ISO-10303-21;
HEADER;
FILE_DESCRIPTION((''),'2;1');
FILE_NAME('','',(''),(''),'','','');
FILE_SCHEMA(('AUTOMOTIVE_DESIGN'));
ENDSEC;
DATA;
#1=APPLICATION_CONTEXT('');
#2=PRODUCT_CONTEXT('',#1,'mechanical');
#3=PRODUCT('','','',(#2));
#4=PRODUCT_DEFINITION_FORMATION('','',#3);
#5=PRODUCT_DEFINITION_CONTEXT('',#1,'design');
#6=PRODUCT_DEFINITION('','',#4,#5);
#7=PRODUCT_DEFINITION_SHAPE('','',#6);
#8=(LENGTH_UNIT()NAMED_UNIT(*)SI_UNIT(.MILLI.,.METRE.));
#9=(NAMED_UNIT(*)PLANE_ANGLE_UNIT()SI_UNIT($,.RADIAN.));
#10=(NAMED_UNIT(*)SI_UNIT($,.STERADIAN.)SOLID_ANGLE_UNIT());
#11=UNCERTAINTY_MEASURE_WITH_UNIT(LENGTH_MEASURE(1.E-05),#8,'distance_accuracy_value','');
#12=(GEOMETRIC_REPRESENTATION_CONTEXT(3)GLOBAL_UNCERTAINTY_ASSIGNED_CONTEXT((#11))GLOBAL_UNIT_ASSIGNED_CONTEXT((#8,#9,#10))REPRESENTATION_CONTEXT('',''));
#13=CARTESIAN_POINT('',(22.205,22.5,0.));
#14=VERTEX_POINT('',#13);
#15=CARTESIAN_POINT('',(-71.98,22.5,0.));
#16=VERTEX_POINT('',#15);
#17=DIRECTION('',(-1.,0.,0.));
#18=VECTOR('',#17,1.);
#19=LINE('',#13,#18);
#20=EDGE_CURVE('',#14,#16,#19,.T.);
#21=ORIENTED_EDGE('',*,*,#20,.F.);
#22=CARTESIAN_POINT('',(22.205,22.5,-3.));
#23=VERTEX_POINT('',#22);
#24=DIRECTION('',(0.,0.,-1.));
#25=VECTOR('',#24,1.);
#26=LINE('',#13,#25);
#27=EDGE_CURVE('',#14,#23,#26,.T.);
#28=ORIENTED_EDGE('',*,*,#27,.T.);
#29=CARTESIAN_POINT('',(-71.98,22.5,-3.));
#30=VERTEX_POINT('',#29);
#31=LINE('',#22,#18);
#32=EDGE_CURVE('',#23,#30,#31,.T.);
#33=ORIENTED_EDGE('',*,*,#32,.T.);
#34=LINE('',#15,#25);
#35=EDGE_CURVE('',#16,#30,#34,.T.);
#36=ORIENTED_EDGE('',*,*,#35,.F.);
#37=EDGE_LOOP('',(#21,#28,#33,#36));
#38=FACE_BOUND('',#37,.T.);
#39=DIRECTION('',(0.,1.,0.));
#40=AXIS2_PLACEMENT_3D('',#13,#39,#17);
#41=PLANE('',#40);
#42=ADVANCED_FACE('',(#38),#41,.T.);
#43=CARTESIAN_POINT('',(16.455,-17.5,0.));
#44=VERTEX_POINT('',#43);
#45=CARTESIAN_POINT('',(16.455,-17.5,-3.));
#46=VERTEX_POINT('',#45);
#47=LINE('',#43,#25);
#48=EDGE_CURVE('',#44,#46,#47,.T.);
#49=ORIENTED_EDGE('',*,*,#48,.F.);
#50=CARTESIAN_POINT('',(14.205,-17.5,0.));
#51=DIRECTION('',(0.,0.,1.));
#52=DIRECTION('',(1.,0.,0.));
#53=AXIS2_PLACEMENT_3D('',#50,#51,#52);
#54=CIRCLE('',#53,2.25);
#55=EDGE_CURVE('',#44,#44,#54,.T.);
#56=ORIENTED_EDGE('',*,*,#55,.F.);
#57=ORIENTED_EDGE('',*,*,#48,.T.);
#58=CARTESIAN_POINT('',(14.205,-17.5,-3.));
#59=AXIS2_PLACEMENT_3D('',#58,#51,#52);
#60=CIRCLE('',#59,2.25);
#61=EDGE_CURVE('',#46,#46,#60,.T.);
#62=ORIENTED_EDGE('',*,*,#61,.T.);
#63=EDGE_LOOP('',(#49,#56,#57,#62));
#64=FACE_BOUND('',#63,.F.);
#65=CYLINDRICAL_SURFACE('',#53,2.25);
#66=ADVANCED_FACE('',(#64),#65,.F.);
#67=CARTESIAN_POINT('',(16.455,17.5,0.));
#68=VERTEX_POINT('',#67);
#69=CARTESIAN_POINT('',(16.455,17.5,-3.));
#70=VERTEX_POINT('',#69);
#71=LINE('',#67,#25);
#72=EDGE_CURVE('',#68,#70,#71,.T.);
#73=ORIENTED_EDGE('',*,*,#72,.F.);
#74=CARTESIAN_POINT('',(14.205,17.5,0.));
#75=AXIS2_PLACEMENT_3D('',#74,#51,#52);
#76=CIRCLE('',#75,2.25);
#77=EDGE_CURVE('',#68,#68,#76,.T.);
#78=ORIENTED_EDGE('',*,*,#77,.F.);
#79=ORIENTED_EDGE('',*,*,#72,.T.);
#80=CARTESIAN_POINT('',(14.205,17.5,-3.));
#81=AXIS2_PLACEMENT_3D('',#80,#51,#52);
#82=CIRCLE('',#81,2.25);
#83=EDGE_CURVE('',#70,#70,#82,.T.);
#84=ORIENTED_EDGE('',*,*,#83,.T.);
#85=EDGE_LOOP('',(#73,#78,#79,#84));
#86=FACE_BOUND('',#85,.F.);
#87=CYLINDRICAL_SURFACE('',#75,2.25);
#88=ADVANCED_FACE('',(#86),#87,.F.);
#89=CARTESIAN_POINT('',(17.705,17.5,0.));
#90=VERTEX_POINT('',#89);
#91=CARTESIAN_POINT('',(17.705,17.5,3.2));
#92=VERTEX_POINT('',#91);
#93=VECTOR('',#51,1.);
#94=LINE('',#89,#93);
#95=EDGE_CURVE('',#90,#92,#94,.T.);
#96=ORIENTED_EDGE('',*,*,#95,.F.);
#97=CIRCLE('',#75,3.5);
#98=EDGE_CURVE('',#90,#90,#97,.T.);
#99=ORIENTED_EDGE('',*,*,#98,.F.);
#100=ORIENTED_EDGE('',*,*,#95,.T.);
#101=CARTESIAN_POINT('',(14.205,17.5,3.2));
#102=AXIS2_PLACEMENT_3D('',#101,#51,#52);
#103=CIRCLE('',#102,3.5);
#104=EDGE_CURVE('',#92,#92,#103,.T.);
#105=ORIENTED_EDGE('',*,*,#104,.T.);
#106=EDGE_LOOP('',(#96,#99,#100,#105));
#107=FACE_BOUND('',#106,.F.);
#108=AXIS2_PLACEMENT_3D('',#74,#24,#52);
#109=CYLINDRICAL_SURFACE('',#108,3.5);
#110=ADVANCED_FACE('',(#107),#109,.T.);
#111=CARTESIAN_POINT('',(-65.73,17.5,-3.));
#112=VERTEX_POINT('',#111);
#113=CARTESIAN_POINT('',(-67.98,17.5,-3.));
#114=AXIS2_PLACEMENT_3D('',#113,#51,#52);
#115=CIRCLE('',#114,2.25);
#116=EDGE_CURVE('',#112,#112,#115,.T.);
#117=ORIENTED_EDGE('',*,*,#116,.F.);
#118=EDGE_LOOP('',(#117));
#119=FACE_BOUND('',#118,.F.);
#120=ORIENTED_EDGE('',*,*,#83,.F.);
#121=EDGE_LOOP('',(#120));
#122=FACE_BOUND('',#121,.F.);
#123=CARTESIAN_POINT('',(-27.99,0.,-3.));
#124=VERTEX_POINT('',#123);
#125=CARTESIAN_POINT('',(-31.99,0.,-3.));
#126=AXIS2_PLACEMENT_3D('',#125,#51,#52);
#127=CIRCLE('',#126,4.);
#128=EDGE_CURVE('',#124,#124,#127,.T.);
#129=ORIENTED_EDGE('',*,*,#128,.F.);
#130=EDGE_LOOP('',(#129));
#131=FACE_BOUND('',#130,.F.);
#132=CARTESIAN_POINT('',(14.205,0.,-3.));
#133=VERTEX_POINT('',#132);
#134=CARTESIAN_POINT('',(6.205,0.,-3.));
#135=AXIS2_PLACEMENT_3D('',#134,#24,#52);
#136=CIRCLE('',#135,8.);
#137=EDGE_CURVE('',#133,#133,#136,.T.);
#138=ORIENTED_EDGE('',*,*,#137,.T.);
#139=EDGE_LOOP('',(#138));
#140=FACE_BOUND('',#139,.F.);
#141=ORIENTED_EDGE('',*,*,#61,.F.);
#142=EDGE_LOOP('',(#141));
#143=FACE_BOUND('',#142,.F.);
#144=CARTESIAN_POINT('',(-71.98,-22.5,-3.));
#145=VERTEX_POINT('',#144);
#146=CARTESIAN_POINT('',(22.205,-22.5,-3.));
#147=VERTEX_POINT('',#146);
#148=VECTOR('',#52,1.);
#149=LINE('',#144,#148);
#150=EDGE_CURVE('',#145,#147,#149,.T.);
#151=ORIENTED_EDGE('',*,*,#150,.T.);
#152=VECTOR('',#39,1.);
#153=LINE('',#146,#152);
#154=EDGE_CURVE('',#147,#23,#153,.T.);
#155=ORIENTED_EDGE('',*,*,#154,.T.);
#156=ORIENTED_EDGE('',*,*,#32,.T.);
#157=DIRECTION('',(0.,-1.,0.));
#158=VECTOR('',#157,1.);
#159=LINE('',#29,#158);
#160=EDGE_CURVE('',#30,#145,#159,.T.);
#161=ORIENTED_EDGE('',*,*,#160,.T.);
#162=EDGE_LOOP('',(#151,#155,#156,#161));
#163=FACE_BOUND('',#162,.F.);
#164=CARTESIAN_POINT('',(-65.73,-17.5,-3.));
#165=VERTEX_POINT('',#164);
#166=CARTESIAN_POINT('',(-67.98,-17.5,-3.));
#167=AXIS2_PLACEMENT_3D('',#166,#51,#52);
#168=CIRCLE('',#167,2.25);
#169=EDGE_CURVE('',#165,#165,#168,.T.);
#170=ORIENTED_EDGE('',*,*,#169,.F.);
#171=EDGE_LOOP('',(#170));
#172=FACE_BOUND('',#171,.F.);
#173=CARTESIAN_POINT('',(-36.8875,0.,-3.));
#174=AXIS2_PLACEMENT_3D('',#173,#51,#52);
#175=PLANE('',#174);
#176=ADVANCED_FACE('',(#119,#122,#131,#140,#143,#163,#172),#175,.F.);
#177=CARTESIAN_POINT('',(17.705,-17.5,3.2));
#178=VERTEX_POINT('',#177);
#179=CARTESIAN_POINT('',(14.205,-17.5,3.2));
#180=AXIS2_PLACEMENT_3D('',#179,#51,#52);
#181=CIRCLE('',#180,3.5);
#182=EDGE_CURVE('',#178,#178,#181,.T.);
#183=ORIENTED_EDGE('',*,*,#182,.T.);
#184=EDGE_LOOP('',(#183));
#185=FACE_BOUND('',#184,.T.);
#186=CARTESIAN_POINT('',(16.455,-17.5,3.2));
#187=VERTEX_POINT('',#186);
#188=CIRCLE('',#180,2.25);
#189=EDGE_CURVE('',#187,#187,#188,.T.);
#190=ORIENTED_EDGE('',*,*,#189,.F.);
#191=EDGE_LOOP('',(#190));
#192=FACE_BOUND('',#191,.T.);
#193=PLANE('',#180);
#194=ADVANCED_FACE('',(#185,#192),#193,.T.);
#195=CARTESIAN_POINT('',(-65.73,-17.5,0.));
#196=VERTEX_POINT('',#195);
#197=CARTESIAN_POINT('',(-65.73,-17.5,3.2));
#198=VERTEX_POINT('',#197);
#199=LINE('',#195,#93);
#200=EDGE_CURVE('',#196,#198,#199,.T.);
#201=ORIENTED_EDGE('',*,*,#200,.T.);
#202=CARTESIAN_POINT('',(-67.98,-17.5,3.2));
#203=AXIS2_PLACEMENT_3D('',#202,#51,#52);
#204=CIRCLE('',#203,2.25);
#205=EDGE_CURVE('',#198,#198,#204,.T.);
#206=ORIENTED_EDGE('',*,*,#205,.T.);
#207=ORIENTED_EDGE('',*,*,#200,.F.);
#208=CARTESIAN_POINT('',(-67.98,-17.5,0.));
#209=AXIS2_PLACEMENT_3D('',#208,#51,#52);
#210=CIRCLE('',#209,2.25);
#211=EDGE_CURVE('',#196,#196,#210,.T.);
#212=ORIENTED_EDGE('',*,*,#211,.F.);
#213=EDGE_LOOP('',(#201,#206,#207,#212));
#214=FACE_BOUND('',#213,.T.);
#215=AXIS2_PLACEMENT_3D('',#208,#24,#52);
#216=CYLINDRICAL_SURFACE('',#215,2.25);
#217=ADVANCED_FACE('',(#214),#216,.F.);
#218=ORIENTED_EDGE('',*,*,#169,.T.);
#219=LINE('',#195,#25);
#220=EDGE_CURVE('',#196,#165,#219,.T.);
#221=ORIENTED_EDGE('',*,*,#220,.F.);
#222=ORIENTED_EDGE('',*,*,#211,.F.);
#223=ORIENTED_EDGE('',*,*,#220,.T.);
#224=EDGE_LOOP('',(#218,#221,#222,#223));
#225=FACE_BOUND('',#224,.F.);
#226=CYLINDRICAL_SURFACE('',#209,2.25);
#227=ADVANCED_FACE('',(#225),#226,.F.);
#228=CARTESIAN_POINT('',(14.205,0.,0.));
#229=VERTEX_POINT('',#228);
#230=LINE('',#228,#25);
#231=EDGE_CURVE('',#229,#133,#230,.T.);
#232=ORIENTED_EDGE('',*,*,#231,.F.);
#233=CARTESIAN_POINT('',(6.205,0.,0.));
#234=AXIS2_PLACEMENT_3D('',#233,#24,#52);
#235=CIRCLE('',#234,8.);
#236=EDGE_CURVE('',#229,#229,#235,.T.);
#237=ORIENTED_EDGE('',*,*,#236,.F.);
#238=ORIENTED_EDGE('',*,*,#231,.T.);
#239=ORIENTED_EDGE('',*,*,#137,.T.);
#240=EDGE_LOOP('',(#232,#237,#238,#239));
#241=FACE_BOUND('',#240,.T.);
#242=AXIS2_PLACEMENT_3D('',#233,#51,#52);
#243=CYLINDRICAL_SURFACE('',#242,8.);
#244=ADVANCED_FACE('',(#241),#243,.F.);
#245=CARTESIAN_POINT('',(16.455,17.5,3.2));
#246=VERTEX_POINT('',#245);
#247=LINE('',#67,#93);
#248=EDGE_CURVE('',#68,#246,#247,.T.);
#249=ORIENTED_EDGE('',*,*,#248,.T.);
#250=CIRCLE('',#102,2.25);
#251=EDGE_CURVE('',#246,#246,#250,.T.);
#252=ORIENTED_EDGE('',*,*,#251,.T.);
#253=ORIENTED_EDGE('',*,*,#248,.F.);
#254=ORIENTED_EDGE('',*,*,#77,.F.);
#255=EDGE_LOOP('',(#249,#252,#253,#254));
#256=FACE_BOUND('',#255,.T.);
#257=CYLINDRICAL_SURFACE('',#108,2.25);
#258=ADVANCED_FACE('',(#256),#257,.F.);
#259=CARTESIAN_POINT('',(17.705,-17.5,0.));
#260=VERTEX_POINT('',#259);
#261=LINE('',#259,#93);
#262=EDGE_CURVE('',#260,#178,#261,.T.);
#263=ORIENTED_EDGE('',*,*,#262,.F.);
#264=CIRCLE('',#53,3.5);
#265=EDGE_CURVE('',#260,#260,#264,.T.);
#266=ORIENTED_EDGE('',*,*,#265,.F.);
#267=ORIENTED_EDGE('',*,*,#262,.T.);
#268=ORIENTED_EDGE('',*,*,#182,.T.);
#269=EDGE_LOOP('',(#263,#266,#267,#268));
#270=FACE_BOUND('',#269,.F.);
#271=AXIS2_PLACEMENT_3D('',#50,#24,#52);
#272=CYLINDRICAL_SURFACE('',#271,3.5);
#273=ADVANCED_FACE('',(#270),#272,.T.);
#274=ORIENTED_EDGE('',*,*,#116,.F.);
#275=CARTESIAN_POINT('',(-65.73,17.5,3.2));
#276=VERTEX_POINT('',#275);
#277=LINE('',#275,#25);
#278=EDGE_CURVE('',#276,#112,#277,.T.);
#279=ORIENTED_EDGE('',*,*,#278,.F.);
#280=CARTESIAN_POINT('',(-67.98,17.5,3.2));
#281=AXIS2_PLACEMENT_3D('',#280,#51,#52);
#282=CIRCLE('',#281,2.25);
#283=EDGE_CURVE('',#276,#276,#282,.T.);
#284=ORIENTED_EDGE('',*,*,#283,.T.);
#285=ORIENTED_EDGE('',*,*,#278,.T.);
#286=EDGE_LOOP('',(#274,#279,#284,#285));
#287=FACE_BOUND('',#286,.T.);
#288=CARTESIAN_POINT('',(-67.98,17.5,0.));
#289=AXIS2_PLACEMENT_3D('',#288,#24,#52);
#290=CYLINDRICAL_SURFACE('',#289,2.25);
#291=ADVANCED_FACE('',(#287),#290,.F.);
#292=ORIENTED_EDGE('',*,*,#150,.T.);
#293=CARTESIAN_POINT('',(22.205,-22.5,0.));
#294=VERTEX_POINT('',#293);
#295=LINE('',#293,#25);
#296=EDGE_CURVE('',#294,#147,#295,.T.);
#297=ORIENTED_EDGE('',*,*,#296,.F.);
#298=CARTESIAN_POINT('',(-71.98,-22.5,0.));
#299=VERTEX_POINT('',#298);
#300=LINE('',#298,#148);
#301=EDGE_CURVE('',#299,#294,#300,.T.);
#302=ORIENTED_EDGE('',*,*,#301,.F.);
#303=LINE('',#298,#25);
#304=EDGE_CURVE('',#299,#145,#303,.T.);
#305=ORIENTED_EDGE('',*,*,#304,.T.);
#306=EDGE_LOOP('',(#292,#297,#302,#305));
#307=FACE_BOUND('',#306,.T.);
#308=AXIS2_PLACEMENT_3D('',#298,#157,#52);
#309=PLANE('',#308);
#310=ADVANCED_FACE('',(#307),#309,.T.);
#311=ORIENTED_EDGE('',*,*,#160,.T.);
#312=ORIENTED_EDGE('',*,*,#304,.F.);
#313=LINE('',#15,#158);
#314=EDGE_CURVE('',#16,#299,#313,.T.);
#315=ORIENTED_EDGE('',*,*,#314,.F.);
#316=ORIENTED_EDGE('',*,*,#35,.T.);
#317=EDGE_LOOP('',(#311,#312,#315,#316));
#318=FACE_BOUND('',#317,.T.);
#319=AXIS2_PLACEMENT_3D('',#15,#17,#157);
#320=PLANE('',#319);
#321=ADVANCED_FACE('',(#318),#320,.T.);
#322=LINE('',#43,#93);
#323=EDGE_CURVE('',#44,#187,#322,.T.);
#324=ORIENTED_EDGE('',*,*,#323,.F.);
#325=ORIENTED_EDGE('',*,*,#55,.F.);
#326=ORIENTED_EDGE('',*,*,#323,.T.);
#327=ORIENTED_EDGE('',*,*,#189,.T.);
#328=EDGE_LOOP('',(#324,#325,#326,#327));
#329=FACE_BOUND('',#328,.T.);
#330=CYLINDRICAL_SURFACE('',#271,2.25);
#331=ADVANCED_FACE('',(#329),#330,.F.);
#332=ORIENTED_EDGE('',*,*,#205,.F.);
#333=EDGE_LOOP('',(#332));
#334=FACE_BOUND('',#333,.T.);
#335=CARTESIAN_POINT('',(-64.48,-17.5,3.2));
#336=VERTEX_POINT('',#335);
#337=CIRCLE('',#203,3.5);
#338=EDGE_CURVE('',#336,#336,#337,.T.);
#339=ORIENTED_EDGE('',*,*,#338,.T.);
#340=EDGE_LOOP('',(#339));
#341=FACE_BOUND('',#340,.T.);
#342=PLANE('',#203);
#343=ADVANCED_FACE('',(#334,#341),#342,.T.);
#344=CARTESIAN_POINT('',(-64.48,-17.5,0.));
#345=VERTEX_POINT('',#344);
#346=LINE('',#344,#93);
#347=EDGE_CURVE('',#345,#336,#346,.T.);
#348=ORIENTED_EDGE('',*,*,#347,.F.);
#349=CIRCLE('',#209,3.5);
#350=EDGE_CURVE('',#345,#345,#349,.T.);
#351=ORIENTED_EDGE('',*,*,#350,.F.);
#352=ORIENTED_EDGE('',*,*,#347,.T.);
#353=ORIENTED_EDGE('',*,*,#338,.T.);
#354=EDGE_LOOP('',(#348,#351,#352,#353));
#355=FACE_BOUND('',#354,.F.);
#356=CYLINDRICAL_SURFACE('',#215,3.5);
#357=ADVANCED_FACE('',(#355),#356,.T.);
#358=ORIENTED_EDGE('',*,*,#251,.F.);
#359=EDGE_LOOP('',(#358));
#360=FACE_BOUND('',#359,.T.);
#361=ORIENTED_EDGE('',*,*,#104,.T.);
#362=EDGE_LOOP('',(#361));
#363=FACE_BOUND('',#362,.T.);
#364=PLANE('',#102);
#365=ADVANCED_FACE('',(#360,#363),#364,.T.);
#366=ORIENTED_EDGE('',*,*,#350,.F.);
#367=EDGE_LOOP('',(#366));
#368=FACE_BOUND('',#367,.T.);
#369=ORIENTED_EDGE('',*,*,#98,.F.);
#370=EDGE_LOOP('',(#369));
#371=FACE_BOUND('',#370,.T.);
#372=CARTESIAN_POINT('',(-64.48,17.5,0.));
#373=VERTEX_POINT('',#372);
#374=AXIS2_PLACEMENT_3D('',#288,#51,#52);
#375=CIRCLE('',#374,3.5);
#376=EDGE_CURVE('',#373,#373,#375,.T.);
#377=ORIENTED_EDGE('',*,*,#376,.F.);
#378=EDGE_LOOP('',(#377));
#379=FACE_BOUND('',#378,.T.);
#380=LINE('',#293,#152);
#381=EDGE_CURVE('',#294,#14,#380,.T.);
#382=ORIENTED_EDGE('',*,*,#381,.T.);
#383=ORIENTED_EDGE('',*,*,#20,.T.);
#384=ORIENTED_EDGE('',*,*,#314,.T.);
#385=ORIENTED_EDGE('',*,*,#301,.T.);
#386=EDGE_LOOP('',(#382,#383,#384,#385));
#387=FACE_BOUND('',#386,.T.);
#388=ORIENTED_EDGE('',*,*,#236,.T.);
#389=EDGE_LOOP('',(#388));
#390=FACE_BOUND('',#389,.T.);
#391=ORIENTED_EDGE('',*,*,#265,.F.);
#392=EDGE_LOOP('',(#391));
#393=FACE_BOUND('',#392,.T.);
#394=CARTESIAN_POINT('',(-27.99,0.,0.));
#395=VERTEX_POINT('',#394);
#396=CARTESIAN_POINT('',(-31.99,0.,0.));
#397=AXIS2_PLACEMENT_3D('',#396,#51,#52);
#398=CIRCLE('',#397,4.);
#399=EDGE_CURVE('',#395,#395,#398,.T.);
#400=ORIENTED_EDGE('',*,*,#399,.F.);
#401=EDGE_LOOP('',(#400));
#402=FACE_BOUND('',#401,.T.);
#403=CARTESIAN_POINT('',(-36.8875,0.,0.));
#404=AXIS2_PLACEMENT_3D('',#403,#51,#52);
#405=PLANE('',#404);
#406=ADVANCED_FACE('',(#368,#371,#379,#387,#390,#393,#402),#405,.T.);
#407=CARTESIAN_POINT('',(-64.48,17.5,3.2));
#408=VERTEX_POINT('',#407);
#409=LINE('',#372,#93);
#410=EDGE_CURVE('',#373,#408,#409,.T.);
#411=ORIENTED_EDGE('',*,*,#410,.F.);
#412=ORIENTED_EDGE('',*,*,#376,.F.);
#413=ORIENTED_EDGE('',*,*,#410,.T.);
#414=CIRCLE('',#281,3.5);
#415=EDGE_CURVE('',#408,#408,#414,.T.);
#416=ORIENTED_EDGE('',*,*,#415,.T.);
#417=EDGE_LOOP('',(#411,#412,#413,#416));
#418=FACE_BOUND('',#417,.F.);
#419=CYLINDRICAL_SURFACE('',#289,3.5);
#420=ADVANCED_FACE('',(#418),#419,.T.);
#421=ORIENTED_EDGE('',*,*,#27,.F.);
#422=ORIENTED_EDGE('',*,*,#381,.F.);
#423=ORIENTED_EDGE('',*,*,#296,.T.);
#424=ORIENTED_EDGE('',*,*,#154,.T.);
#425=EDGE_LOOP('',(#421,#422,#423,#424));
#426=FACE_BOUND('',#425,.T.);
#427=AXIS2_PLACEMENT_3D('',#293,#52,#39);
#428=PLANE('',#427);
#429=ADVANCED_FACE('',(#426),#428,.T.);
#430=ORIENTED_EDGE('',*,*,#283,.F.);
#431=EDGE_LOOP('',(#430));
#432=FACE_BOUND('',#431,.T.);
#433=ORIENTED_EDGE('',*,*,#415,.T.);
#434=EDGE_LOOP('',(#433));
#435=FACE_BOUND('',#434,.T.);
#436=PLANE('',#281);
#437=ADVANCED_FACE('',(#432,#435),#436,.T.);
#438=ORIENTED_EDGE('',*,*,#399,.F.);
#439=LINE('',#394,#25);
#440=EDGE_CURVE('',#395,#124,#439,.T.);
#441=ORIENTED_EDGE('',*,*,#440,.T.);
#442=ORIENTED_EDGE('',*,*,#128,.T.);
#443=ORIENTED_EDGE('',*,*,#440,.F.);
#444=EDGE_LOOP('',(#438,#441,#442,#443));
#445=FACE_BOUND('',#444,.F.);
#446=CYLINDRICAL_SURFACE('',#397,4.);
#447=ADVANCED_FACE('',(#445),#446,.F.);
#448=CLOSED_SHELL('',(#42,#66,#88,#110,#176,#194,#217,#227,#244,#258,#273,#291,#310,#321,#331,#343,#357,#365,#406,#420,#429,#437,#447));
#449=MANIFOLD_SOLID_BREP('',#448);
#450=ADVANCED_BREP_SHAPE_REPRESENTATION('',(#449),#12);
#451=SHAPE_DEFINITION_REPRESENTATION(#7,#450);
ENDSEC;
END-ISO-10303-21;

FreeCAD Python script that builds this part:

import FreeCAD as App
import Part
import Sketcher
from FreeCAD import Vector

doc = App.newDocument("Part")
body = doc.addObject("PartDesign::Body", "Body")

# Sketch on XY plane
sketch1 = body.newObject("Sketcher::SketchObject", "Sketch")
sketch1.AttachmentSupport = (doc.getObject("XY_Plane"), [""])
sketch1.MapMode = "FlatFace"
sketch1.addGeometry([
    Part.LineSegment(Vector(-72, -22.5, 0), Vector(22.2, -22.5, 0)),  # 0
    Part.LineSegment(Vector(22.2, -22.5, 0), Vector(22.2, 22.5, 0)),  # 1
    Part.LineSegment(Vector(22.2, 22.5, 0), Vector(-72, 22.5, 0)),  # 2
    Part.LineSegment(Vector(-72, 22.5, 0), Vector(-72, -22.5, 0)),  # 3
    Part.Circle(Vector(-68, -17.5, 0), Vector(0, 0, 1), 2.2),  # 4
    Part.Circle(Vector(14.2, -17.5, 0), Vector(0, 0, 1), 2.2),  # 5
    Part.Circle(Vector(-32, 0, 0), Vector(0, 0, 1), 4),  # 6
    Part.Circle(Vector(-68, 17.5, 0), Vector(0, 0, 1), 2.2),  # 7
    Part.Circle(Vector(6.2, 0, 0), Vector(0, 0, 1), 8),  # 8
    Part.Circle(Vector(14.2, 17.5, 0), Vector(0, 0, 1), 2.2),  # 9
], False)
sketch1.addConstraint([
    Sketcher.Constraint("Coincident", 0, 2, 1, 1),
    Sketcher.Constraint("Coincident", 1, 2, 2, 1),
    Sketcher.Constraint("Coincident", 2, 2, 3, 1),
    Sketcher.Constraint("Coincident", 3, 2, 0, 1),
    Sketcher.Constraint("Horizontal", 0),
    Sketcher.Constraint("Vertical", 1),
    Sketcher.Constraint("Horizontal", 2),
    Sketcher.Constraint("Vertical", 3),
    Sketcher.Constraint("Equal", 4, 5),
    Sketcher.Constraint("Equal", 5, 7),
    Sketcher.Constraint("Equal", 7, 9),
    Sketcher.Constraint("Symmetric", 4, 3, 7, 3, -1),
    Sketcher.Constraint("Symmetric", 5, 3, 9, 3, -1),
    Sketcher.Constraint("PointOnObject", 6, 3, -1),
    Sketcher.Constraint("PointOnObject", 8, 3, -1),
    Sketcher.Constraint("Horizontal", 4, 3, 5, 3),
    Sketcher.Constraint("Diameter", 6, 8.0),
    Sketcher.Constraint("Diameter", 8, 16.0),
    Sketcher.Constraint("Diameter", 4, 4.5),
    Sketcher.Constraint("DistanceY", 1, 1, 1, 2, 45.0),
    Sketcher.Constraint("DistanceY", 4, 3, 7, 3, 35.0),
    Sketcher.Constraint("DistanceX", 8, 3, 5, 3, 8.0),
    Sketcher.Constraint("DistanceX", 5, 3, 0, 2, 8.0),
    Sketcher.Constraint("DistanceY", 0, 2, 5, 3, 5.0),
    Sketcher.Constraint("DistanceX", 2, 2, 7, 3, 4.0),
    Sketcher.Constraint("DistanceX", 0, 1, 0, 2, 94.185),
    Sketcher.Constraint("DistanceX", 4, 3, -1, 1, 67.98),
    Sketcher.Constraint("DistanceX", 6, 3, -1, 1, 31.99),
])
pad1 = body.newObject("PartDesign::Pad", "Pad")
pad1.Profile = sketch1
pad1.Length = 3
pad1.Reversed = True

# Sketch on XY plane
sketch2 = body.newObject("Sketcher::SketchObject", "Sketch001")
sketch2.AttachmentSupport = (doc.getObject("XY_Plane"), [""])
sketch2.MapMode = "FlatFace"
sketch2.addGeometry([
    Part.Circle(Vector(-68, 17.5, 0), Vector(0, 0, 1), 3.5),  # 0
    Part.Circle(Vector(-68, 17.5, 0), Vector(0, 0, 1), 2.2),  # 1
    Part.Circle(Vector(-68, -17.5, 0), Vector(0, 0, 1), 3.5),  # 2
    Part.Circle(Vector(-68, -17.5, 0), Vector(0, 0, 1), 2.2),  # 3
    Part.Circle(Vector(14.2, -17.5, 0), Vector(0, 0, 1), 3.5),  # 4
    Part.Circle(Vector(14.2, -17.5, 0), Vector(0, 0, 1), 2.2),  # 5
    Part.Circle(Vector(14.2, 17.5, 0), Vector(0, 0, 1), 3.5),  # 6
    Part.Circle(Vector(14.2, 17.5, 0), Vector(0, 0, 1), 2.2),  # 7
], False)
sketch2.addConstraint([
    Sketcher.Constraint("Coincident", 1, 3, 0, 3),
    Sketcher.Constraint("Coincident", 3, 3, 2, 3),
    Sketcher.Constraint("Coincident", 5, 3, 4, 3),
    Sketcher.Constraint("Coincident", 7, 3, 6, 3),
    Sketcher.Constraint("Equal", 0, 2),
    Sketcher.Constraint("Equal", 1, 3),
    Sketcher.Constraint("Equal", 2, 4),
    Sketcher.Constraint("Equal", 3, 5),
    Sketcher.Constraint("Equal", 4, 6),
    Sketcher.Constraint("Equal", 5, 7),
    Sketcher.Constraint("Symmetric", 0, 3, 2, 3, -1),
    Sketcher.Constraint("Symmetric", 4, 3, 6, 3, -1),
    Sketcher.Constraint("Horizontal", 3, 3, 4, 3),
    Sketcher.Constraint("Diameter", 0, 7.0),
    Sketcher.Constraint("Diameter", 1, 4.5),
    Sketcher.Constraint("DistanceY", 2, 3, 0, 3, 35.0),
    Sketcher.Constraint("DistanceX", 0, 3, -1, 1, 67.98),
    Sketcher.Constraint("DistanceX", -1, 1, 4, 3, 14.205),
])
pad2 = body.newObject("PartDesign::Pad", "Pad001")
pad2.Profile = sketch2
pad2.Length = 3.2

doc.recompute()
